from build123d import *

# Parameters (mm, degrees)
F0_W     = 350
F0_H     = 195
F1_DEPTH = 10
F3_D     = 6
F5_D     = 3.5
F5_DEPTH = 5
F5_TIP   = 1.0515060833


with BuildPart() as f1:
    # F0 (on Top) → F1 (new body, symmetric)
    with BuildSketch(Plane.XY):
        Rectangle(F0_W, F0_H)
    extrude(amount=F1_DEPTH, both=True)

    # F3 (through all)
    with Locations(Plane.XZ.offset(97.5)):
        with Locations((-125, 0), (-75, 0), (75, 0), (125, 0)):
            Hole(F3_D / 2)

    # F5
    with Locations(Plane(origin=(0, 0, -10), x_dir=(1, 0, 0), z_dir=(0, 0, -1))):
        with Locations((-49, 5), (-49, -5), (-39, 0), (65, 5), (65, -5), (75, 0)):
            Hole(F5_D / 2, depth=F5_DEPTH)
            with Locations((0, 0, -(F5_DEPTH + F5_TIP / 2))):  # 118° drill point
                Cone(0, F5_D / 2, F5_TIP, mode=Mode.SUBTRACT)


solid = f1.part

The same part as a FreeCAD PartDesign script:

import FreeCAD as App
import Part
import Sketcher
from FreeCAD import Vector
Q = App.Units.Quantity


def add_polygon(sketch, points):
    """Adds a closed chain of lines whose ends are joined by coincident constraints."""
    first, n = sketch.GeometryCount, len(points)
    for a, b in zip(points, points[1:] + points[:1]):
        sketch.addGeometry(Part.LineSegment(App.Vector(*a, 0), App.Vector(*b, 0)), False)
    for i in range(n):
        sketch.addConstraint(Sketcher.Constraint("Coincident", first + i, 2, first + (i + 1) % n, 1))

doc = App.newDocument("Part")
params = doc.addObject("Spreadsheet::Sheet", "Params")
for row, (alias, value) in enumerate([
    ("sketch1_width", "350 mm"),
    ("sketch1_height", "195 mm"),
    ("pad1_length", "20 mm"),
    ("sketch2_diameter", "6 mm"),
    ("hole_diameter", "6 mm"),
    ("sketch3_diameter", "3.5 mm"),
    ("hole2_diameter", "3.5 mm"),
    ("hole2_depth", "5 mm"),
], start=1):
    params.set(f"A{row}", alias)
    params.set(f"B{row}", "=" + value)
    params.setAlias(f"B{row}", alias)

body = doc.addObject("PartDesign::Body", "Body")

# Sketch on XY plane
sketch1 = body.newObject("Sketcher::SketchObject", "Sketch")
sketch1.AttachmentSupport = (doc.getObject("XY_Plane"), [""])
sketch1.MapMode = "FlatFace"
add_polygon(sketch1, [(-175, 97.5), (-175, -97.5), (175, -97.5), (175, 97.5)])  # lines 0-3
sketch1.addConstraint(Sketcher.Constraint("Vertical", 0))
sketch1.addConstraint(Sketcher.Constraint("Horizontal", 1))
sketch1.addConstraint(Sketcher.Constraint("Vertical", 2))
sketch1.addConstraint(Sketcher.Constraint("Horizontal", 3))
sketch1.addConstraint(Sketcher.Constraint("Symmetric", 0, 2, 2, 2, -1, 1))
sketch1.addConstraint(Sketcher.Constraint("DistanceX", 1, 1, 1, 2, Q("350 mm")))
sketch1.addConstraint(Sketcher.Constraint("DistanceY", 0, 2, 0, 1, Q("195 mm")))
sketch1.setExpression("Constraints[9]", "Params.sketch1_width")
sketch1.setExpression("Constraints[10]", "Params.sketch1_height")
pad1 = body.newObject("PartDesign::Pad", "Pad")
pad1.Profile = sketch1
pad1.setExpression("Length", "Params.pad1_length")
pad1.Midplane = True

# Sketch on XZ plane
sketch2 = body.newObject("Sketcher::SketchObject", "Sketch001")
sketch2.AttachmentSupport = (doc.getObject("XZ_Plane"), [""])
sketch2.MapMode = "FlatFace"
sketch2.AttachmentOffset = App.Placement(Vector(0, 0, 97.5), App.Rotation())
sketch2.addGeometry(Part.Circle(Vector(-125, 0, 0), Vector(0, 0, 1), 3), False)
sketch2.addGeometry(Part.Circle(Vector(-75, 0, 0), Vector(0, 0, 1), 3), False)
sketch2.addGeometry(Part.Circle(Vector(75, 0, 0), Vector(0, 0, 1), 3), False)
sketch2.addGeometry(Part.Circle(Vector(125, 0, 0), Vector(0, 0, 1), 3), False)
sketch2.addConstraint(Sketcher.Constraint("Equal", 0, 1))
sketch2.addConstraint(Sketcher.Constraint("Equal", 1, 2))
sketch2.addConstraint(Sketcher.Constraint("Equal", 2, 3))
sketch2.addConstraint(Sketcher.Constraint("Symmetric", 1, 3, 2, 3, -1, 1))
sketch2.addConstraint(Sketcher.Constraint("Symmetric", 0, 3, 3, 3, -1, 1))
sketch2.addConstraint(Sketcher.Constraint("PointOnObject", 0, 3, -1))
sketch2.addConstraint(Sketcher.Constraint("PointOnObject", 1, 3, -1))
sketch2.addConstraint(Sketcher.Constraint("Diameter", 0, Q("6 mm")))
sketch2.addConstraint(Sketcher.Constraint("DistanceX", 0, 3, -1, 1, Q("125 mm")))
sketch2.addConstraint(Sketcher.Constraint("DistanceX", 1, 3, -1, 1, Q("75 mm")))
sketch2.setExpression("Constraints[7]", "Params.sketch2_diameter")
doc.recompute()
hole = body.newObject("PartDesign::Hole", "Hole")
hole.Profile = sketch2
hole.ThreadType = "None"
hole.setExpression("Diameter", "Params.hole_diameter")
hole.DepthType = "ThroughAll"

# Sketch on XY plane
sketch3 = body.newObject("Sketcher::SketchObject", "Sketch002")
sketch3.AttachmentSupport = (doc.getObject("XY_Plane"), [""])
sketch3.MapMode = "FlatFace"
sketch3.AttachmentOffset = App.Placement(Vector(0, 0, -10), App.Rotation())
sketch3.addGeometry(Part.Circle(Vector(-49, -5, 0), Vector(0, 0, 1), 1.75), False)
sketch3.addGeometry(Part.Circle(Vector(-49, 5, 0), Vector(0, 0, 1), 1.75), False)
sketch3.addGeometry(Part.Circle(Vector(-39, 0, 0), Vector(0, 0, 1), 1.75), False)
sketch3.addGeometry(Part.Circle(Vector(65, -5, 0), Vector(0, 0, 1), 1.75), False)
sketch3.addGeometry(Part.Circle(Vector(65, 5, 0), Vector(0, 0, 1), 1.75), False)
sketch3.addGeometry(Part.Circle(Vector(75, 0, 0), Vector(0, 0, 1), 1.75), False)
sketch3.addConstraint(Sketcher.Constraint("Equal", 0, 1))
sketch3.addConstraint(Sketcher.Constraint("Equal", 1, 2))
sketch3.addConstraint(Sketcher.Constraint("Equal", 2, 3))
sketch3.addConstraint(Sketcher.Constraint("Equal", 3, 4))
sketch3.addConstraint(Sketcher.Constraint("Equal", 4, 5))
sketch3.addConstraint(Sketcher.Constraint("Symmetric", 0, 3, 1, 3, -1))
sketch3.addConstraint(Sketcher.Constraint("Symmetric", 3, 3, 4, 3, -1))
sketch3.addConstraint(Sketcher.Constraint("PointOnObject", 2, 3, -1))
sketch3.addConstraint(Sketcher.Constraint("PointOnObject", 5, 3, -1))
sketch3.addConstraint(Sketcher.Constraint("Horizontal", 0, 3, 3, 3))
sketch3.addConstraint(Sketcher.Constraint("Diameter", 0, Q("3.5 mm")))
sketch3.addConstraint(Sketcher.Constraint("DistanceX", 0, 3, -1, 1, Q("49 mm")))
sketch3.addConstraint(Sketcher.Constraint("DistanceY", 0, 3, -1, 1, Q("5 mm")))
sketch3.addConstraint(Sketcher.Constraint("DistanceX", 2, 3, -1, 1, Q("39 mm")))
sketch3.addConstraint(Sketcher.Constraint("DistanceX", -1, 1, 3, 3, Q("65 mm")))
sketch3.addConstraint(Sketcher.Constraint("DistanceX", -1, 1, 5, 3, Q("75 mm")))
sketch3.setExpression("Constraints[10]", "Params.sketch3_diameter")
doc.recompute()
hole2 = body.newObject("PartDesign::Hole", "Hole001")
hole2.Profile = sketch3
hole2.ThreadType = "None"
hole2.setExpression("Diameter", "Params.hole2_diameter")
hole2.DepthType = "Dimension"
hole2.setExpression("Depth", "Params.hole2_depth")
hole2.DrillPoint = "Angled"
hole2.DrillPointAngle = 118
hole2.Reversed = True

doc.recompute()
